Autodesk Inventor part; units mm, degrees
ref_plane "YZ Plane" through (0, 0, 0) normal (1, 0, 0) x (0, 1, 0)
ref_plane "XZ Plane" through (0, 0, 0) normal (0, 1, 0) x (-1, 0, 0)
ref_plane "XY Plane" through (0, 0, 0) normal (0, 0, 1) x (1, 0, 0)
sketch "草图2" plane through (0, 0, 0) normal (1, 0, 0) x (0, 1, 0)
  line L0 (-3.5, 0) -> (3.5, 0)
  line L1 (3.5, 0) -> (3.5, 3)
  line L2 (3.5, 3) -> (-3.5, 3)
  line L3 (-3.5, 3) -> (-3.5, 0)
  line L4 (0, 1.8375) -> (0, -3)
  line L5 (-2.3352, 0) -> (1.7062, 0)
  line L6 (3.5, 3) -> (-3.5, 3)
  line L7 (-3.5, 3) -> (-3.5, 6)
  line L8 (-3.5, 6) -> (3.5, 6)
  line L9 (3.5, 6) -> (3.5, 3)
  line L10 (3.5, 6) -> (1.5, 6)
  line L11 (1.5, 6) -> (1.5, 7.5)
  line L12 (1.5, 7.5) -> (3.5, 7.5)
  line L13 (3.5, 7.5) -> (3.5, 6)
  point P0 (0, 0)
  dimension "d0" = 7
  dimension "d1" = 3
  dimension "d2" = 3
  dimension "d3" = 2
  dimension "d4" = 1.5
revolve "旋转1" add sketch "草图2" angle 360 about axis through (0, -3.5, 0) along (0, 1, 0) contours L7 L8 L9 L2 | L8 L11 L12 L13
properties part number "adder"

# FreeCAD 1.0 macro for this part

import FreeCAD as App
import Part
import Sketcher
from FreeCAD import Vector
Q = App.Units.Quantity

doc = App.newDocument("Part")
body = doc.addObject("PartDesign::Body", "Body")

# Sketch on YZ plane
sketch1 = doc.addObject("Sketcher::SketchObject", "Sketch")
body.addObject(sketch1)
sketch1.AttachmentSupport = (doc.YZ_Plane, [""])
sketch1.MapMode = "FlatFace"
sketch1.addGeometry([
    Part.LineSegment(Vector(-3.5, 6, 0), Vector(-3.5, 3, 0)),  # 0
    Part.LineSegment(Vector(-3.5, 3, 0), Vector(3.5, 3, 0)),  # 1
    Part.LineSegment(Vector(3.5, 3, 0), Vector(3.5, 7.5, 0)),  # 2
    Part.LineSegment(Vector(3.5, 7.5, 0), Vector(1.5, 7.5, 0)),  # 3
    Part.LineSegment(Vector(1.5, 7.5, 0), Vector(1.5, 6, 0)),  # 4
    Part.LineSegment(Vector(1.5, 6, 0), Vector(-3.5, 6, 0)),  # 5
], False)
sketch1.addConstraint([
    Sketcher.Constraint("Coincident", 0, 2, 1, 1),
    Sketcher.Constraint("Coincident", 1, 2, 2, 1),
    Sketcher.Constraint("Coincident", 2, 2, 3, 1),
    Sketcher.Constraint("Coincident", 3, 2, 4, 1),
    Sketcher.Constraint("Coincident", 4, 2, 5, 1),
    Sketcher.Constraint("Coincident", 5, 2, 0, 1),
    Sketcher.Constraint("Vertical", 0),
    Sketcher.Constraint("Horizontal", 1),
    Sketcher.Constraint("Vertical", 2),
    Sketcher.Constraint("Horizontal", 3),
    Sketcher.Constraint("Vertical", 4),
    Sketcher.Constraint("Horizontal", 5),
    Sketcher.Constraint("DistanceX", 1, 1, 1, 2, Q("7 mm")),
    Sketcher.Constraint("DistanceX", 3, 2, 3, 1, Q("2 mm")),
    Sketcher.Constraint("DistanceY", 0, 2, 0, 1, Q("3 mm")),
    Sketcher.Constraint("DistanceY", 4, 2, 4, 1, Q("1.5 mm")),
    Sketcher.Constraint("DistanceY", -1, 1, 0, 2, Q("3 mm")),
    Sketcher.Constraint("DistanceX", -1, 1, 3, 2, Q("1.5 mm")),
])
revolution = doc.addObject("PartDesign::Revolution", "Revolution")
body.addObject(revolution)
revolution.Profile = sketch1
revolution.ReferenceAxis = (sketch1, ["H_Axis"])
revolution.Angle = 360

doc.recompute()
